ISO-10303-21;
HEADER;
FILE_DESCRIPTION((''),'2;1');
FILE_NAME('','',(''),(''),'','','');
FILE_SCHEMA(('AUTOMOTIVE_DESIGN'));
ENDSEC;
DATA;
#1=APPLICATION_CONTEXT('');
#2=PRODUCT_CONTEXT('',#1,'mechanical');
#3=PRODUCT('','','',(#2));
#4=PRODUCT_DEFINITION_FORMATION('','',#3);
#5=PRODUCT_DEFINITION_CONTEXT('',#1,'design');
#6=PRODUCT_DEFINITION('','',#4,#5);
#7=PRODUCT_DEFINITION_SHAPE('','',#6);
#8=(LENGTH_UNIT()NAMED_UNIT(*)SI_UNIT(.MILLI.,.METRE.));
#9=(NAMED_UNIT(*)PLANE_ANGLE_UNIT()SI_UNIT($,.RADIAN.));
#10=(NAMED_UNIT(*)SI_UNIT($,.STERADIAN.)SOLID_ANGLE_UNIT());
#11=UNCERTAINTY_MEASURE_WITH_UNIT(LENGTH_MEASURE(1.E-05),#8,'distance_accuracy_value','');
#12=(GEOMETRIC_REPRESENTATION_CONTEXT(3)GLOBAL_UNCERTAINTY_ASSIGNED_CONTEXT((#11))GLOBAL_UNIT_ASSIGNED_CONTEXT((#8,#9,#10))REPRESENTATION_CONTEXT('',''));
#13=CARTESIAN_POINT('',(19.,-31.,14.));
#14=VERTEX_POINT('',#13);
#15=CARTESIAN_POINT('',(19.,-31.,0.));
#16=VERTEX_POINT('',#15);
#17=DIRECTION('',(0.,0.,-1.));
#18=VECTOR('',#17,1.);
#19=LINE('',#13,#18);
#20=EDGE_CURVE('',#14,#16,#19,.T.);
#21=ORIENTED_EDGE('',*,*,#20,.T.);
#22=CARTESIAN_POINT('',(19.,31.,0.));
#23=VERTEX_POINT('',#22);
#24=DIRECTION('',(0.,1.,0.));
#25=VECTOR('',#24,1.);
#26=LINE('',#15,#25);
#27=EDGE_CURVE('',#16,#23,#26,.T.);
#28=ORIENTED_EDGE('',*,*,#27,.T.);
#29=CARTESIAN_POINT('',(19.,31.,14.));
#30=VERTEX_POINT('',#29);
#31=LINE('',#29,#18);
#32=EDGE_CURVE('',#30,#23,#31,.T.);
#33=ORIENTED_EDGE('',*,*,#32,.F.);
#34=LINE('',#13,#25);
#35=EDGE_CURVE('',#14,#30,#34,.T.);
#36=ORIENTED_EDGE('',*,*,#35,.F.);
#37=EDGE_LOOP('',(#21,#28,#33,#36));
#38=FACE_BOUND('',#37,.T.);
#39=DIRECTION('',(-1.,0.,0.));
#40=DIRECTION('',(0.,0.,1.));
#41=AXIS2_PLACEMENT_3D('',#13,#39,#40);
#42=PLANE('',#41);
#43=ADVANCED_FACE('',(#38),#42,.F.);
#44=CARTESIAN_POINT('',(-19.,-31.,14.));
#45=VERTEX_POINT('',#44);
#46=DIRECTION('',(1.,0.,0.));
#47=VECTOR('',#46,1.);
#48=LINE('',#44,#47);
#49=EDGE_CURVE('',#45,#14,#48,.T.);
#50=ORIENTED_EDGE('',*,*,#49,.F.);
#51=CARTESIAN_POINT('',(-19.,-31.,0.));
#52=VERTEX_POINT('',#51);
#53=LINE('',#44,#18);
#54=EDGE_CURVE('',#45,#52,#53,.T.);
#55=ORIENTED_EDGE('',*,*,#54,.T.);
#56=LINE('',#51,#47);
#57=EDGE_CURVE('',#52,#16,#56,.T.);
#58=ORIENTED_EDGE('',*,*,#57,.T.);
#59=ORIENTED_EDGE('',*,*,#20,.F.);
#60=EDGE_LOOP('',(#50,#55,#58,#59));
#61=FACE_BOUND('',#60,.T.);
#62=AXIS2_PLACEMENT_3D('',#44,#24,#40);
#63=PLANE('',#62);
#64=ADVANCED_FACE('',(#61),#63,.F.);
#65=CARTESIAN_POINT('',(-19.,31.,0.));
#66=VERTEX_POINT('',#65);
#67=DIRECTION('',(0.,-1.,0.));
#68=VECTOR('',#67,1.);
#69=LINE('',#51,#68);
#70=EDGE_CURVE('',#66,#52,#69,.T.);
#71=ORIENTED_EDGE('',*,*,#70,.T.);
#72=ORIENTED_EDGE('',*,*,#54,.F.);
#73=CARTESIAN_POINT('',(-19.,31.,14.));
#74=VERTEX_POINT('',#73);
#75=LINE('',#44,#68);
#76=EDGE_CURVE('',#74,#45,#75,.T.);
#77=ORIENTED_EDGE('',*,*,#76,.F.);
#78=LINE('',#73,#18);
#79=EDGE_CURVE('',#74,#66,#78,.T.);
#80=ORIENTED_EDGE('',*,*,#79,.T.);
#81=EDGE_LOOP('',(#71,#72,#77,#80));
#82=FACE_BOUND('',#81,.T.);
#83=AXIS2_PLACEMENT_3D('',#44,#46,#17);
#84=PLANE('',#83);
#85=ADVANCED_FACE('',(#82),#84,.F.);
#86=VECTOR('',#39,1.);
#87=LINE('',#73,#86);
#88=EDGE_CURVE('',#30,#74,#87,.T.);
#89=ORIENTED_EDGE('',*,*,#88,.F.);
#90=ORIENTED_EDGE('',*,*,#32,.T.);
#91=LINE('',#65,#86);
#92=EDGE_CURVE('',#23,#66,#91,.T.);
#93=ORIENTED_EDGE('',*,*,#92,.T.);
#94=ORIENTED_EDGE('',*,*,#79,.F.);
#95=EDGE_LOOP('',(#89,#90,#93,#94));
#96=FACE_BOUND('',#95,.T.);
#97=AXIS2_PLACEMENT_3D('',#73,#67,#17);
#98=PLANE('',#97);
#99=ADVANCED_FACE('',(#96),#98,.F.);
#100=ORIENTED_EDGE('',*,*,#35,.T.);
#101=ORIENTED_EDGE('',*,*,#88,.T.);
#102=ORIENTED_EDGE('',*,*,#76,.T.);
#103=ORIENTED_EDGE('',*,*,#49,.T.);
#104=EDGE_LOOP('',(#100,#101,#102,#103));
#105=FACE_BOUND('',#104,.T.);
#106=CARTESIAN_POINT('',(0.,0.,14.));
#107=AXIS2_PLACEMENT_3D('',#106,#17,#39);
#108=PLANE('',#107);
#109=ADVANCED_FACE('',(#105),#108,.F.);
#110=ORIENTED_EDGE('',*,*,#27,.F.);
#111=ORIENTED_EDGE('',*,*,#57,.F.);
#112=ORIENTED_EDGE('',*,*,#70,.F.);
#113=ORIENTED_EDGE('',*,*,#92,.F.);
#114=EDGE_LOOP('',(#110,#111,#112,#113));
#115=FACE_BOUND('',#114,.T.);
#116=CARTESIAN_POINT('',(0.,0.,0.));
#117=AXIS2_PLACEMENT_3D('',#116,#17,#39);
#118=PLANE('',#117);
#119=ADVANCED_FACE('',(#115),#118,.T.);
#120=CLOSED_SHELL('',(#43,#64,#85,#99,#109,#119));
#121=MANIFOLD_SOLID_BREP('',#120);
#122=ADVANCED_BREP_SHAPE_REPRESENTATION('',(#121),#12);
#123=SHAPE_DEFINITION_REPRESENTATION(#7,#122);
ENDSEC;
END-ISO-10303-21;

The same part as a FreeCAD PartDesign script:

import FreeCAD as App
import Part
import Sketcher

V = App.Vector

doc = App.newDocument("Part")
params = doc.addObject("Spreadsheet::Sheet", "Params")
for row, (alias, value) in enumerate([
    ("sketch1_width", "38 mm"),
    ("sketch1_height", "62 mm"),
    ("pad1_length", "14 mm"),
], start=1):
    params.set(f"A{row}", alias)
    params.set(f"B{row}", "=" + value)
    params.setAlias(f"B{row}", alias)

body = doc.addObject("PartDesign::Body", "Body")

# Sketch on XY plane
sketch1 = body.newObject("Sketcher::SketchObject", "Sketch")
sketch1.AttachmentSupport = (doc.getObject("XY_Plane"), [""])
sketch1.MapMode = "FlatFace"
sketch1.addGeometry(Part.LineSegment(V(-19, 31, 0), V(-19, -31, 0)), False)
sketch1.addGeometry(Part.LineSegment(V(-19, -31, 0), V(19, -31, 0)), False)
sketch1.addGeometry(Part.LineSegment(V(19, -31, 0), V(19, 31, 0)), False)
sketch1.addGeometry(Part.LineSegment(V(19, 31, 0), V(-19, 31, 0)), False)
sketch1.addConstraint(Sketcher.Constraint("Coincident", 0, 2, 1, 1))
sketch1.addConstraint(Sketcher.Constraint("Coincident", 1, 2, 2, 1))
sketch1.addConstraint(Sketcher.Constraint("Coincident", 2, 2, 3, 1))
sketch1.addConstraint(Sketcher.Constraint("Coincident", 3, 2, 0, 1))
sketch1.addConstraint(Sketcher.Constraint("Vertical", 0))
sketch1.addConstraint(Sketcher.Constraint("Horizontal", 1))
sketch1.addConstraint(Sketcher.Constraint("Vertical", 2))
sketch1.addConstraint(Sketcher.Constraint("Horizontal", 3))
sketch1.addConstraint(Sketcher.Constraint("Symmetric", 0, 2, 2, 2, -1, 1))
sketch1.addConstraint(Sketcher.Constraint("DistanceX", 1, 1, 1, 2, 38.0))
sketch1.addConstraint(Sketcher.Constraint("DistanceY", 0, 2, 0, 1, 62.0))
sketch1.setExpression("Constraints[9]", "Params.sketch1_width")
sketch1.setExpression("Constraints[10]", "Params.sketch1_height")
pad1 = body.newObject("PartDesign::Pad", "Pad")
pad1.Profile = sketch1
pad1.setExpression("Length", "Params.pad1_length")

doc.recompute()
